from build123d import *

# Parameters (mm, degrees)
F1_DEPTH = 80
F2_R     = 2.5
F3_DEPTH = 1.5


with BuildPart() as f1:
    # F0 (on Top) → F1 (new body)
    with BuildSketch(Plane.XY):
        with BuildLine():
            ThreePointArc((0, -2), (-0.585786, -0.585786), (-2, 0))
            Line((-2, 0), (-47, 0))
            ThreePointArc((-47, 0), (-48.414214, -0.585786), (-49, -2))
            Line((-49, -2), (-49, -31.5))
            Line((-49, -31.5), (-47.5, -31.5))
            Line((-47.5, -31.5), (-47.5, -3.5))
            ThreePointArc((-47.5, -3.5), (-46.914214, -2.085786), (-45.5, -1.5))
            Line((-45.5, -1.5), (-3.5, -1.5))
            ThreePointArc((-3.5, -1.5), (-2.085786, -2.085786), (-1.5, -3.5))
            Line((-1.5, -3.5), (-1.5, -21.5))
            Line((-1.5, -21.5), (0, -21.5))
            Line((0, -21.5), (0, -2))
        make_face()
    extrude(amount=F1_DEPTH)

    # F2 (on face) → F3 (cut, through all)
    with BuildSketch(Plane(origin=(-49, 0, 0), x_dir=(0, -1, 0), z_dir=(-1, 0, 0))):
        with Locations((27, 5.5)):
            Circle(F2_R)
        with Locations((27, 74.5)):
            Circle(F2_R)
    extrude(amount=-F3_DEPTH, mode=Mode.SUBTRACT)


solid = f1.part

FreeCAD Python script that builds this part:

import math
import FreeCAD as App
import Part
import Sketcher
from FreeCAD import Vector

doc = App.newDocument("Part")
body = doc.addObject("PartDesign::Body", "Body")

# Sketch on XY plane
sketch1 = body.newObject("Sketcher::SketchObject", "Sketch")
sketch1.AttachmentSupport = (doc.getObject("XY_Plane"), [""])
sketch1.MapMode = "FlatFace"
sketch1.addGeometry([
    Part.ArcOfCircle(Part.Circle(Vector(-1.999999, -1.999999, 0), Vector(0, 0, 1), 1.999999), math.radians(-0.000043), math.radians(90.000043)),  # 0
    Part.LineSegment(Vector(-2, 0, 0), Vector(-47, 0, 0)),  # 1
    Part.ArcOfCircle(Part.Circle(Vector(-47.000001, -1.999999, 0), Vector(0, 0, 1), 1.999999), math.radians(89.999957), math.radians(180.000043)),  # 2
    Part.LineSegment(Vector(-49, -2, 0), Vector(-49, -31.5, 0)),  # 3
    Part.LineSegment(Vector(-49, -31.5, 0), Vector(-47.5, -31.5, 0)),  # 4
    Part.LineSegment(Vector(-47.5, -31.5, 0), Vector(-47.5, -3.5, 0)),  # 5
    Part.ArcOfCircle(Part.Circle(Vector(-45.500001, -3.499999, 0), Vector(0, 0, 1), 1.999999), math.radians(89.999957), math.radians(180.000043)),  # 6
    Part.LineSegment(Vector(-45.5, -1.5, 0), Vector(-3.5, -1.5, 0)),  # 7
    Part.ArcOfCircle(Part.Circle(Vector(-3.499999, -3.499999, 0), Vector(0, 0, 1), 1.999999), math.radians(-0.000043), math.radians(90.000043)),  # 8
    Part.LineSegment(Vector(-1.5, -3.5, 0), Vector(-1.5, -21.5, 0)),  # 9
    Part.LineSegment(Vector(-1.5, -21.5, 0), Vector(0, -21.5, 0)),  # 10
    Part.LineSegment(Vector(0, -21.5, 0), Vector(0, -2, 0)),  # 11
], False)
sketch1.addConstraint([
    Sketcher.Constraint("Tangent", 0, 2, 1, 1),
    Sketcher.Constraint("Tangent", 1, 2, 2, 1),
    Sketcher.Constraint("Tangent", 2, 2, 3, 1),
    Sketcher.Constraint("Coincident", 3, 2, 4, 1),
    Sketcher.Constraint("Coincident", 4, 2, 5, 1),
    Sketcher.Constraint("Tangent", 5, 2, 6, 2),
    Sketcher.Constraint("Tangent", 6, 1, 7, 1),
    Sketcher.Constraint("Tangent", 7, 2, 8, 2),
    Sketcher.Constraint("Tangent", 8, 1, 9, 1),
    Sketcher.Constraint("Coincident", 9, 2, 10, 1),
    Sketcher.Constraint("Coincident", 10, 2, 11, 1),
    Sketcher.Constraint("Tangent", 11, 2, 0, 1),
    Sketcher.Constraint("Horizontal", 1),
    Sketcher.Constraint("Vertical", 3),
    Sketcher.Constraint("Horizontal", 4),
    Sketcher.Constraint("Vertical", 5),
    Sketcher.Constraint("Horizontal", 7),
    Sketcher.Constraint("Vertical", 9),
    Sketcher.Constraint("Horizontal", 10),
    Sketcher.Constraint("Vertical", 11),
    Sketcher.Constraint("Equal", 0, 2),
    Sketcher.Constraint("Equal", 2, 6),
    Sketcher.Constraint("Equal", 6, 8),
    Sketcher.Constraint("PointOnObject", 0, 2, -1),
    Sketcher.Constraint("PointOnObject", 10, 2, -2),
    Sketcher.Constraint("Equal", 4, 10),
    Sketcher.Constraint("Radius", 0, 1.999999),
    Sketcher.Constraint("DistanceX", 1, 2, 1, 1, 45.0),
    Sketcher.Constraint("DistanceX", 7, 1, 7, 2, 42.0),
    Sketcher.Constraint("DistanceY", 5, 1, 5, 2, 28.0),
    Sketcher.Constraint("DistanceY", 9, 2, 9, 1, 18.0),
    Sketcher.Constraint("DistanceY", 3, 2, 3, 1, 29.5),
])
pad1 = body.newObject("PartDesign::Pad", "Pad")
pad1.Profile = sketch1
pad1.Length = 80

# Sketch on YZ plane
sketch2 = body.newObject("Sketcher::SketchObject", "Sketch001")
sketch2.AttachmentSupport = (doc.getObject("YZ_Plane"), [""])
sketch2.MapMode = "FlatFace"
sketch2.AttachmentOffset = App.Placement(Vector(0, 0, -49), App.Rotation())
sketch2.addGeometry([
    Part.Circle(Vector(-27, 5.5, 0), Vector(0, 0, 1), 2.5),
    Part.Circle(Vector(-27, 74.5, 0), Vector(0, 0, 1), 2.5),
], False)
sketch2.addConstraint([
    Sketcher.Constraint("Equal", 0, 1),
    Sketcher.Constraint("Vertical", 0, 3, 1, 3),
    Sketcher.Constraint("Diameter", 0, 5.0),
    Sketcher.Constraint("DistanceX", 0, 3, -1, 1, 27.0),
    Sketcher.Constraint("DistanceY", 0, 3, 1, 3, 69.0),
    Sketcher.Constraint("DistanceY", -1, 1, 0, 3, 5.5),
])
pocket1 = body.newObject("PartDesign::Pocket", "Pocket")
pocket1.Profile = sketch2
pocket1.Type = "ThroughAll"
pocket1.Reversed = True

doc.recompute()
